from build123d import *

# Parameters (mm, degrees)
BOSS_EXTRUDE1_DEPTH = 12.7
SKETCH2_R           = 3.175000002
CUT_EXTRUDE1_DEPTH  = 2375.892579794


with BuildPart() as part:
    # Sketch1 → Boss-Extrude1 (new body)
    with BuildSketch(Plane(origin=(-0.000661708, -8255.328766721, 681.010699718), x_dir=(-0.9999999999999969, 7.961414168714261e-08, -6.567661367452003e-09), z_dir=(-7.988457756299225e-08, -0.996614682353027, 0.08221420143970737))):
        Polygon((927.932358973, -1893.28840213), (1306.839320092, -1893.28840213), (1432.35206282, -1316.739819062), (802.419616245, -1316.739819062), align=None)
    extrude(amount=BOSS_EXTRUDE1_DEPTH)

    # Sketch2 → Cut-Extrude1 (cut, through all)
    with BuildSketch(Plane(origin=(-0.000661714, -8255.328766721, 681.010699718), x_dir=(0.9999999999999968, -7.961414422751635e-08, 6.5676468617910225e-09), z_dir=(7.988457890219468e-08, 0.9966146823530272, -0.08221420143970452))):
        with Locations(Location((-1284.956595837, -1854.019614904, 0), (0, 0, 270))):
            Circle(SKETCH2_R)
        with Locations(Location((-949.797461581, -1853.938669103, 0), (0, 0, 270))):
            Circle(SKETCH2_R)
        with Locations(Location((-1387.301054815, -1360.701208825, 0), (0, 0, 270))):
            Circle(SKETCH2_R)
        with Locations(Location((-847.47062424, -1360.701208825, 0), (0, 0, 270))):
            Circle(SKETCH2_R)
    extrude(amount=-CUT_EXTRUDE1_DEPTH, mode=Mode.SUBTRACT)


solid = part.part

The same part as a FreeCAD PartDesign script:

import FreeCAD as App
import Part
import Sketcher
from FreeCAD import Vector
Q = App.Units.Quantity

doc = App.newDocument("Part")
body = doc.addObject("PartDesign::Body", "Body")

# Sketch on an angled plane
sketch1 = body.newObject("Sketcher::SketchObject", "Sketch")
sketch1.Placement = App.Placement(Vector(-0.000662, -8255.328767, 681.0107), App.Rotation(Vector(-1, 0.00000008, -0.000000007), Vector(0, -0.082214201, -0.996614682), Vector(-0.00000008, -0.996614682, 0.082214201), "ZXY"))
sketch1.addGeometry(Part.LineSegment(Vector(928, -1893, 0), Vector(1307, -1893, 0)), False)
sketch1.addGeometry(Part.LineSegment(Vector(1307, -1893, 0), Vector(1432, -1317, 0)), False)
sketch1.addGeometry(Part.LineSegment(Vector(1432, -1317, 0), Vector(802, -1317, 0)), False)
sketch1.addGeometry(Part.LineSegment(Vector(802, -1317, 0), Vector(928, -1893, 0)), False)
sketch1.addConstraint(Sketcher.Constraint("Coincident", 0, 2, 1, 1))
sketch1.addConstraint(Sketcher.Constraint("Coincident", 1, 2, 2, 1))
sketch1.addConstraint(Sketcher.Constraint("Coincident", 2, 2, 3, 1))
sketch1.addConstraint(Sketcher.Constraint("Coincident", 3, 2, 0, 1))
sketch1.addConstraint(Sketcher.Constraint("Horizontal", 0))
sketch1.addConstraint(Sketcher.Constraint("Horizontal", 2))
sketch1.addConstraint(Sketcher.Constraint("Equal", 1, 3))
sketch1.addConstraint(Sketcher.Constraint("Distance", 1, 590.0523))
sketch1.addConstraint(Sketcher.Constraint("DistanceX", 0, 1, 0, 2, 378.906961))
sketch1.addConstraint(Sketcher.Constraint("DistanceY", 0, 2, -1, 1, 1893.288401))
sketch1.addConstraint(Sketcher.Constraint("DistanceX", 2, 2, 2, 1, 629.932447))
sketch1.addConstraint(Sketcher.Constraint("DistanceX", -1, 1, 0, 2, 1306.83932))
pad1 = body.newObject("PartDesign::Pad", "Pad")
pad1.Profile = sketch1
pad1.Length = Q("0.5 in")

# Sketch on an angled plane
sketch2 = body.newObject("Sketcher::SketchObject", "Sketch001")
sketch2.Placement = App.Placement(Vector(-0.000662, -8255.328767, 681.0107), App.Rotation(Vector(1, -0.00000008, 0.000000007), Vector(0, -0.082214201, -0.996614682), Vector(0.00000008, 0.996614682, -0.082214201), "ZXY"))
sketch2.addGeometry(Part.Circle(Vector(-1285, -1854, 0), Vector(0, 0, 1), 3.2), False)
sketch2.addGeometry(Part.Circle(Vector(-949.8, -1853.9, 0), Vector(0, 0, 1), 3.2), False)
sketch2.addGeometry(Part.Circle(Vector(-1387.3, -1360.7, 0), Vector(0, 0, 1), 3.2), False)
sketch2.addGeometry(Part.Circle(Vector(-847.5, -1360.7, 0), Vector(0, 0, 1), 3.2), False)
sketch2.addConstraint(Sketcher.Constraint("Equal", 0, 1))
sketch2.addConstraint(Sketcher.Constraint("Equal", 1, 2))
sketch2.addConstraint(Sketcher.Constraint("Equal", 2, 3))
sketch2.addConstraint(Sketcher.Constraint("Horizontal", 2, 3, 3, 3))
sketch2.addConstraint(Sketcher.Constraint("Diameter", 0, Q("0.25 in")))
sketch2.addConstraint(Sketcher.Constraint("DistanceX", 1, 3, -1, 1, 949.797462))
sketch2.addConstraint(Sketcher.Constraint("DistanceX", 2, 3, 0, 3, 102.344459))
sketch2.addConstraint(Sketcher.Constraint("DistanceY", 1, 3, 2, 3, 493.23746))
sketch2.addConstraint(Sketcher.Constraint("DistanceX", 2, 3, 3, 3, 539.830431))
sketch2.addConstraint(Sketcher.Constraint("DistanceX", 0, 3, -1, 1, 1284.956596))
sketch2.addConstraint(Sketcher.Constraint("DistanceY", 0, 3, -1, 1, 1854.019613))
sketch2.addConstraint(Sketcher.Constraint("DistanceY", 1, 3, -1, 1, 1853.938668))
pocket1 = body.newObject("PartDesign::Pocket", "Pocket")
pocket1.Profile = sketch2
pocket1.Type = "ThroughAll"

doc.recompute()
